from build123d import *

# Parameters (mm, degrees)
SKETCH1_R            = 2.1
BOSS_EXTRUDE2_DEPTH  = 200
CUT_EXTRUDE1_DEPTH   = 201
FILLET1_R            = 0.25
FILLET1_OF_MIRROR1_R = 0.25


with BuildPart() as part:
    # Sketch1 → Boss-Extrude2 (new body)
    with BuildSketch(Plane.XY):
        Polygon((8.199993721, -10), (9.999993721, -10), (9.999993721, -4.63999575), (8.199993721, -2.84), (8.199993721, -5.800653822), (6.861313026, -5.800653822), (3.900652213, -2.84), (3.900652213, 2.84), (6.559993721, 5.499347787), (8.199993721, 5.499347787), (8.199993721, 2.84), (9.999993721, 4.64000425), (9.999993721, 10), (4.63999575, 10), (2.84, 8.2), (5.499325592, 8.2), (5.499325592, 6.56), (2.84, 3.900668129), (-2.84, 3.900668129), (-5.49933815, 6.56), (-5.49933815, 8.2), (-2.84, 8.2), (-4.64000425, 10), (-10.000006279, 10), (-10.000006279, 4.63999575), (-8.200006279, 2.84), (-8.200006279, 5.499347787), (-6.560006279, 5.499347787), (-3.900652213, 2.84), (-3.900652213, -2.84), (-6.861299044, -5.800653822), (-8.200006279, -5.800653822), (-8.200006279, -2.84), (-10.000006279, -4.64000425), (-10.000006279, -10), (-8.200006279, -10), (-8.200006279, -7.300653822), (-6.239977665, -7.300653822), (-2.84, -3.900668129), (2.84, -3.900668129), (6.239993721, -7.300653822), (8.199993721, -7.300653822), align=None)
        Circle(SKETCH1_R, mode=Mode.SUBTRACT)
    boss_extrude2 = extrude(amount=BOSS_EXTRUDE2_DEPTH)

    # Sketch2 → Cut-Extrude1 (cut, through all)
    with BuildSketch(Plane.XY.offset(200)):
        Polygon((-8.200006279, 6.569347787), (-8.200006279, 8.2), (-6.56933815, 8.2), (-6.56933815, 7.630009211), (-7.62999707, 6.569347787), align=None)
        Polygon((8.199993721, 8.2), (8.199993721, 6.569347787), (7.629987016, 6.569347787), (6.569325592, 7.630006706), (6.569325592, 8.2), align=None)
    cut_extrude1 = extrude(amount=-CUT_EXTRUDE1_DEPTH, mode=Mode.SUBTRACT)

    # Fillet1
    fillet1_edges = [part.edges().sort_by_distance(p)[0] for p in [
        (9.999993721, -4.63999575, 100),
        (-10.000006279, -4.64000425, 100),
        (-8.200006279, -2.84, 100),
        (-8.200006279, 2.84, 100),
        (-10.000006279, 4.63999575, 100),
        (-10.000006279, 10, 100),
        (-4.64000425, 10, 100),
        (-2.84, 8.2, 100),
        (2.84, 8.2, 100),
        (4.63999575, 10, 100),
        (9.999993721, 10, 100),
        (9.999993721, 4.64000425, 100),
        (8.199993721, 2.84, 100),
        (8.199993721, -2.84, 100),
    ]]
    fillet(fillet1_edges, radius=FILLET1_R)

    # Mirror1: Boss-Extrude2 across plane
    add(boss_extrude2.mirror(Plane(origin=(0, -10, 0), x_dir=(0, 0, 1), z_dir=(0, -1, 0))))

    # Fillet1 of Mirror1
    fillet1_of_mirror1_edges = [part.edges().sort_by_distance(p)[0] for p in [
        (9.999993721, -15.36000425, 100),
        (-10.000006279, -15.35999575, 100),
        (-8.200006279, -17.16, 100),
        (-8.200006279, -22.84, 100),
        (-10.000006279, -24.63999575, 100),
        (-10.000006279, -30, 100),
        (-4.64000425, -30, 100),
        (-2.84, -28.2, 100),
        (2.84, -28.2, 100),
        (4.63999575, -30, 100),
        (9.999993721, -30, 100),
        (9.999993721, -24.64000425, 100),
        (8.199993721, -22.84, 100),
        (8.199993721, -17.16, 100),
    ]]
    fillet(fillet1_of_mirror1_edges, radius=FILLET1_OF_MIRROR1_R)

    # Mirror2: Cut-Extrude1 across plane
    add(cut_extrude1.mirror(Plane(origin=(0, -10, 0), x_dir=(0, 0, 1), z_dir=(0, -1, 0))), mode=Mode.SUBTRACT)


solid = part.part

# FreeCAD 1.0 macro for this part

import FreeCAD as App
import Part
import Sketcher
Q = App.Units.Quantity


def edges_at(feature, points):
    """Names of the edges that pass closest to the given points."""
    edges = feature.Shape.Edges
    near = lambda p: min(range(len(edges)), key=lambda i: edges[i].distToShape(Part.Vertex(*p))[0])
    return sorted({f"Edge{near(p) + 1}" for p in points})

doc = App.newDocument("Part")
body = doc.addObject("PartDesign::Body", "Body")

sketch1 = doc.addObject("Sketcher::SketchObject", "Sketch")
body.addObject(sketch1)
sketch1.AttachmentSupport = (doc.XY_Plane, [""])
sketch1.MapMode = "FlatFace"
sketch1.addGeometry(Part.LineSegment(App.Vector(8.199994, -10, 0), App.Vector(9.999994, -10, 0)), False)
sketch1.addGeometry(Part.LineSegment(App.Vector(9.999994, -10, 0), App.Vector(9.999994, -4.639996, 0)), False)
sketch1.addGeometry(Part.LineSegment(App.Vector(9.999994, -4.639996, 0), App.Vector(8.199994, -2.84, 0)), False)
sketch1.addGeometry(Part.LineSegment(App.Vector(8.199994, -2.84, 0), App.Vector(8.199994, -5.800654, 0)), False)
sketch1.addGeometry(Part.LineSegment(App.Vector(8.199994, -5.800654, 0), App.Vector(6.861313, -5.800654, 0)), False)
sketch1.addGeometry(Part.LineSegment(App.Vector(6.861313, -5.800654, 0), App.Vector(3.900652, -2.84, 0)), False)
sketch1.addGeometry(Part.LineSegment(App.Vector(3.900652, -2.84, 0), App.Vector(3.900652, 2.84, 0)), False)
sketch1.addGeometry(Part.LineSegment(App.Vector(3.900652, 2.84, 0), App.Vector(6.559994, 5.499348, 0)), False)
sketch1.addGeometry(Part.LineSegment(App.Vector(6.559994, 5.499348, 0), App.Vector(8.199994, 5.499348, 0)), False)
sketch1.addGeometry(Part.LineSegment(App.Vector(8.199994, 5.499348, 0), App.Vector(8.199994, 2.84, 0)), False)
sketch1.addGeometry(Part.LineSegment(App.Vector(8.199994, 2.84, 0), App.Vector(9.999994, 4.640004, 0)), False)
sketch1.addGeometry(Part.LineSegment(App.Vector(9.999994, 4.640004, 0), App.Vector(9.999994, 10, 0)), False)
sketch1.addGeometry(Part.LineSegment(App.Vector(9.999994, 10, 0), App.Vector(4.639996, 10, 0)), False)
sketch1.addGeometry(Part.LineSegment(App.Vector(4.639996, 10, 0), App.Vector(2.84, 8.2, 0)), False)
sketch1.addGeometry(Part.LineSegment(App.Vector(2.84, 8.2, 0), App.Vector(5.499326, 8.2, 0)), False)
sketch1.addGeometry(Part.LineSegment(App.Vector(5.499326, 8.2, 0), App.Vector(5.499326, 6.56, 0)), False)
sketch1.addGeometry(Part.LineSegment(App.Vector(5.499326, 6.56, 0), App.Vector(2.84, 3.900668, 0)), False)
sketch1.addGeometry(Part.LineSegment(App.Vector(2.84, 3.900668, 0), App.Vector(-2.84, 3.900668, 0)), False)
sketch1.addGeometry(Part.LineSegment(App.Vector(-2.84, 3.900668, 0), App.Vector(-5.499338, 6.56, 0)), False)
sketch1.addGeometry(Part.LineSegment(App.Vector(-5.499338, 6.56, 0), App.Vector(-5.499338, 8.2, 0)), False)
sketch1.addGeometry(Part.LineSegment(App.Vector(-5.499338, 8.2, 0), App.Vector(-2.84, 8.2, 0)), False)
sketch1.addGeometry(Part.LineSegment(App.Vector(-2.84, 8.2, 0), App.Vector(-4.640004, 10, 0)), False)
sketch1.addGeometry(Part.LineSegment(App.Vector(-4.640004, 10, 0), App.Vector(-10.000006, 10, 0)), False)
sketch1.addGeometry(Part.LineSegment(App.Vector(-10.000006, 10, 0), App.Vector(-10.000006, 4.639996, 0)), False)
sketch1.addGeometry(Part.LineSegment(App.Vector(-10.000006, 4.639996, 0), App.Vector(-8.200006, 2.84, 0)), False)
sketch1.addGeometry(Part.LineSegment(App.Vector(-8.200006, 2.84, 0), App.Vector(-8.200006, 5.499348, 0)), False)
sketch1.addGeometry(Part.LineSegment(App.Vector(-8.200006, 5.499348, 0), App.Vector(-6.560006, 5.499348, 0)), False)
sketch1.addGeometry(Part.LineSegment(App.Vector(-6.560006, 5.499348, 0), App.Vector(-3.900652, 2.84, 0)), False)
sketch1.addGeometry(Part.LineSegment(App.Vector(-3.900652, 2.84, 0), App.Vector(-3.900652, -2.84, 0)), False)
sketch1.addGeometry(Part.LineSegment(App.Vector(-3.900652, -2.84, 0), App.Vector(-6.861299, -5.800654, 0)), False)
sketch1.addGeometry(Part.LineSegment(App.Vector(-6.861299, -5.800654, 0), App.Vector(-8.200006, -5.800654, 0)), False)
sketch1.addGeometry(Part.LineSegment(App.Vector(-8.200006, -5.800654, 0), App.Vector(-8.200006, -2.84, 0)), False)
sketch1.addGeometry(Part.LineSegment(App.Vector(-8.200006, -2.84, 0), App.Vector(-10.000006, -4.640004, 0)), False)
sketch1.addGeometry(Part.LineSegment(App.Vector(-10.000006, -4.640004, 0), App.Vector(-10.000006, -10, 0)), False)
sketch1.addGeometry(Part.LineSegment(App.Vector(-10.000006, -10, 0), App.Vector(-8.200006, -10, 0)), False)
sketch1.addGeometry(Part.LineSegment(App.Vector(-8.200006, -10, 0), App.Vector(-8.200006, -7.300654, 0)), False)
sketch1.addGeometry(Part.LineSegment(App.Vector(-8.200006, -7.300654, 0), App.Vector(-6.239978, -7.300654, 0)), False)
sketch1.addGeometry(Part.LineSegment(App.Vector(-6.239978, -7.300654, 0), App.Vector(-2.84, -3.900668, 0)), False)
sketch1.addGeometry(Part.LineSegment(App.Vector(-2.84, -3.900668, 0), App.Vector(2.84, -3.900668, 0)), False)
sketch1.addGeometry(Part.LineSegment(App.Vector(2.84, -3.900668, 0), App.Vector(6.239994, -7.300654, 0)), False)
sketch1.addGeometry(Part.LineSegment(App.Vector(6.239994, -7.300654, 0), App.Vector(8.199994, -7.300654, 0)), False)
sketch1.addGeometry(Part.LineSegment(App.Vector(8.199994, -7.300654, 0), App.Vector(8.199994, -10, 0)), False)
sketch1.addGeometry(Part.Circle(App.Vector(0, 0, 0), App.Vector(0, 0, 1), 2.1), False)
sketch1.addConstraint(Sketcher.Constraint("Coincident", 0, 2, 1, 1))
sketch1.addConstraint(Sketcher.Constraint("Coincident", 1, 2, 2, 1))
sketch1.addConstraint(Sketcher.Constraint("Coincident", 2, 2, 3, 1))
sketch1.addConstraint(Sketcher.Constraint("Coincident", 3, 2, 4, 1))
sketch1.addConstraint(Sketcher.Constraint("Coincident", 4, 2, 5, 1))
sketch1.addConstraint(Sketcher.Constraint("Coincident", 5, 2, 6, 1))
sketch1.addConstraint(Sketcher.Constraint("Coincident", 6, 2, 7, 1))
sketch1.addConstraint(Sketcher.Constraint("Coincident", 7, 2, 8, 1))
sketch1.addConstraint(Sketcher.Constraint("Coincident", 8, 2, 9, 1))
sketch1.addConstraint(Sketcher.Constraint("Coincident", 9, 2, 10, 1))
sketch1.addConstraint(Sketcher.Constraint("Coincident", 10, 2, 11, 1))
sketch1.addConstraint(Sketcher.Constraint("Coincident", 11, 2, 12, 1))
sketch1.addConstraint(Sketcher.Constraint("Coincident", 12, 2, 13, 1))
sketch1.addConstraint(Sketcher.Constraint("Coincident", 13, 2, 14, 1))
sketch1.addConstraint(Sketcher.Constraint("Coincident", 14, 2, 15, 1))
sketch1.addConstraint(Sketcher.Constraint("Coincident", 15, 2, 16, 1))
sketch1.addConstraint(Sketcher.Constraint("Coincident", 16, 2, 17, 1))
sketch1.addConstraint(Sketcher.Constraint("Coincident", 17, 2, 18, 1))
sketch1.addConstraint(Sketcher.Constraint("Coincident", 18, 2, 19, 1))
sketch1.addConstraint(Sketcher.Constraint("Coincident", 19, 2, 20, 1))
sketch1.addConstraint(Sketcher.Constraint("Coincident", 20, 2, 21, 1))
sketch1.addConstraint(Sketcher.Constraint("Coincident", 21, 2, 22, 1))
sketch1.addConstraint(Sketcher.Constraint("Coincident", 22, 2, 23, 1))
sketch1.addConstraint(Sketcher.Constraint("Coincident", 23, 2, 24, 1))
sketch1.addConstraint(Sketcher.Constraint("Coincident", 24, 2, 25, 1))
sketch1.addConstraint(Sketcher.Constraint("Coincident", 25, 2, 26, 1))
sketch1.addConstraint(Sketcher.Constraint("Coincident", 26, 2, 27, 1))
sketch1.addConstraint(Sketcher.Constraint("Coincident", 27, 2, 28, 1))
sketch1.addConstraint(Sketcher.Constraint("Coincident", 28, 2, 29, 1))
sketch1.addConstraint(Sketcher.Constraint("Coincident", 29, 2, 30, 1))
sketch1.addConstraint(Sketcher.Constraint("Coincident", 30, 2, 31, 1))
sketch1.addConstraint(Sketcher.Constraint("Coincident", 31, 2, 32, 1))
sketch1.addConstraint(Sketcher.Constraint("Coincident", 32, 2, 33, 1))
sketch1.addConstraint(Sketcher.Constraint("Coincident", 33, 2, 34, 1))
sketch1.addConstraint(Sketcher.Constraint("Coincident", 34, 2, 35, 1))
sketch1.addConstraint(Sketcher.Constraint("Coincident", 35, 2, 36, 1))
sketch1.addConstraint(Sketcher.Constraint("Coincident", 36, 2, 37, 1))
sketch1.addConstraint(Sketcher.Constraint("Coincident", 37, 2, 38, 1))
sketch1.addConstraint(Sketcher.Constraint("Coincident", 38, 2, 39, 1))
sketch1.addConstraint(Sketcher.Constraint("Coincident", 39, 2, 40, 1))
sketch1.addConstraint(Sketcher.Constraint("Coincident", 40, 2, 41, 1))
sketch1.addConstraint(Sketcher.Constraint("Coincident", 41, 2, 0, 1))
sketch1.addConstraint(Sketcher.Constraint("Horizontal", 0))
sketch1.addConstraint(Sketcher.Constraint("Vertical", 1))
sketch1.addConstraint(Sketcher.Constraint("Vertical", 3))
sketch1.addConstraint(Sketcher.Constraint("Horizontal", 4))
sketch1.addConstraint(Sketcher.Constraint("Vertical", 6))
sketch1.addConstraint(Sketcher.Constraint("Horizontal", 8))
sketch1.addConstraint(Sketcher.Constraint("Vertical", 9))
sketch1.addConstraint(Sketcher.Constraint("Vertical", 11))
sketch1.addConstraint(Sketcher.Constraint("Horizontal", 12))
sketch1.addConstraint(Sketcher.Constraint("Horizontal", 14))
sketch1.addConstraint(Sketcher.Constraint("Vertical", 15))
sketch1.addConstraint(Sketcher.Constraint("Horizontal", 17))
sketch1.addConstraint(Sketcher.Constraint("Vertical", 19))
sketch1.addConstraint(Sketcher.Constraint("Horizontal", 20))
sketch1.addConstraint(Sketcher.Constraint("Horizontal", 22))
sketch1.addConstraint(Sketcher.Constraint("Vertical", 23))
sketch1.addConstraint(Sketcher.Constraint("Vertical", 25))
sketch1.addConstraint(Sketcher.Constraint("Horizontal", 26))
sketch1.addConstraint(Sketcher.Constraint("Vertical", 28))
sketch1.addConstraint(Sketcher.Constraint("Horizontal", 30))
sketch1.addConstraint(Sketcher.Constraint("Vertical", 31))
sketch1.addConstraint(Sketcher.Constraint("Vertical", 33))
sketch1.addConstraint(Sketcher.Constraint("Horizontal", 34))
sketch1.addConstraint(Sketcher.Constraint("Vertical", 35))
sketch1.addConstraint(Sketcher.Constraint("Horizontal", 36))
sketch1.addConstraint(Sketcher.Constraint("Horizontal", 38))
sketch1.addConstraint(Sketcher.Constraint("Horizontal", 40))
sketch1.addConstraint(Sketcher.Constraint("Vertical", 41))
sketch1.addConstraint(Sketcher.Constraint("Coincident", 42, 3, -1, 1))
sketch1.addConstraint(Sketcher.Constraint("Diameter", 42, Q("4.2 mm")))
sketch1.addConstraint(Sketcher.Constraint("DistanceX", 0, 1, 0, 2, Q("1.8 mm")))
sketch1.addConstraint(Sketcher.Constraint("DistanceX", 34, 1, 34, 2, Q("1.8 mm")))
sketch1.addConstraint(Sketcher.Constraint("DistanceY", 0, 2, -1, 1, Q("10 mm")))
sketch1.addConstraint(Sketcher.Constraint("DistanceY", -1, 1, 11, 2, Q("10 mm")))
sketch1.addConstraint(Sketcher.Constraint("DistanceY", -1, 1, 21, 2, Q("10 mm")))
sketch1.addConstraint(Sketcher.Constraint("DistanceY", 33, 2, -1, 1, Q("10 mm")))
sketch1.addConstraint(Sketcher.Constraint("DistanceX", 8, 1, 8, 2, Q("1.64 mm")))
sketch1.addConstraint(Sketcher.Constraint("DistanceX", 17, 2, 17, 1, Q("5.68 mm")))
sketch1.addConstraint(Sketcher.Constraint("DistanceX", 26, 1, 26, 2, Q("1.64 mm")))
sketch1.addConstraint(Sketcher.Constraint("DistanceX", 38, 1, 38, 2, Q("5.68 mm")))
sketch1.addConstraint(Sketcher.Constraint("DistanceX", 40, 1, 40, 2, Q("1.96 mm")))
sketch1.addConstraint(Sketcher.Constraint("DistanceY", 6, 1, 6, 2, Q("5.68 mm")))
sketch1.addConstraint(Sketcher.Constraint("DistanceY", 15, 2, 15, 1, Q("1.64 mm")))
sketch1.addConstraint(Sketcher.Constraint("DistanceY", 19, 1, 19, 2, Q("1.64 mm")))
sketch1.addConstraint(Sketcher.Constraint("DistanceY", 28, 2, 28, 1, Q("5.68 mm")))
sketch1.addConstraint(Sketcher.Constraint("DistanceY", -1, 1, 13, 2, Q("8.2 mm")))
sketch1.addConstraint(Sketcher.Constraint("DistanceY", -1, 1, 19, 2, Q("8.2 mm")))
sketch1.addConstraint(Sketcher.Constraint("DistanceX", 2, 2, 1, 2, Q("1.8 mm")))
sketch1.addConstraint(Sketcher.Constraint("DistanceX", 8, 2, 10, 2, Q("1.8 mm")))
sketch1.addConstraint(Sketcher.Constraint("DistanceX", 2, 2, 10, 2, Q("1.8 mm")))
sketch1.addConstraint(Sketcher.Constraint("DistanceX", 23, 2, 24, 2, Q("1.8 mm")))
sketch1.addConstraint(Sketcher.Constraint("DistanceX", 32, 2, 30, 2, Q("1.8 mm")))
sketch1.addConstraint(Sketcher.Constraint("DistanceX", 32, 2, 24, 2, Q("1.8 mm")))
sketch1.addConstraint(Sketcher.Constraint("DistanceY", 35, 2, 30, 2, Q("1.5 mm")))
sketch1.addConstraint(Sketcher.Constraint("DistanceY", 39, 2, 4, 2, Q("1.5 mm")))
sketch1.addConstraint(Sketcher.Constraint("DistanceY", 2, 2, -1, 1, Q("2.84 mm")))
sketch1.addConstraint(Sketcher.Constraint("DistanceY", 5, 2, -1, 1, Q("2.84 mm")))
sketch1.addConstraint(Sketcher.Constraint("DistanceY", -1, 1, 9, 2, Q("2.84 mm")))
sketch1.addConstraint(Sketcher.Constraint("DistanceX", -1, 1, 13, 2, Q("2.84 mm")))
sketch1.addConstraint(Sketcher.Constraint("DistanceX", -1, 1, 16, 2, Q("2.84 mm")))
sketch1.addConstraint(Sketcher.Constraint("DistanceX", 20, 2, -1, 1, Q("2.84 mm")))
sketch1.addConstraint(Sketcher.Constraint("DistanceY", -1, 1, 24, 2, Q("2.84 mm")))
sketch1.addConstraint(Sketcher.Constraint("DistanceY", -1, 1, 27, 2, Q("2.84 mm")))
sketch1.addConstraint(Sketcher.Constraint("DistanceY", 31, 2, -1, 1, Q("2.84 mm")))
sketch1.addConstraint(Sketcher.Constraint("DistanceX", 37, 2, -1, 1, Q("2.84 mm")))
sketch1.addConstraint(Sketcher.Constraint("Distance", 5, Q("4.187002 mm")))
sketch1.addConstraint(Sketcher.Constraint("Distance", 37, Q("4.8083 mm")))
sketch1.addConstraint(Sketcher.Constraint("DistanceX", 4, 2, 4, 1, Q("1.338681 mm")))
sketch1.addConstraint(Sketcher.Constraint("DistanceX", 20, 1, 20, 2, Q("2.659338 mm")))
sketch1.addConstraint(Sketcher.Constraint("DistanceX", 36, 1, 36, 2, Q("1.960029 mm")))
sketch1.addConstraint(Sketcher.Constraint("DistanceX", 29, 2, -1, 1, Q("6.861299 mm")))
sketch1.addConstraint(Sketcher.Constraint("Distance", 2, Q("2.545581 mm")))
sketch1.addConstraint(Sketcher.Constraint("Distance", 7, Q("3.760881 mm")))
sketch1.addConstraint(Sketcher.Constraint("Distance", 13, Q("2.545581 mm")))
sketch1.addConstraint(Sketcher.Constraint("Distance", 16, Q("3.760859 mm")))
sketch1.addConstraint(Sketcher.Constraint("Distance", 24, Q("2.545581 mm")))
sketch1.addConstraint(Sketcher.Constraint("Distance", 27, Q("3.76089 mm")))
sketch1.addConstraint(Sketcher.Constraint("Distance", 29, Q("4.186992 mm")))
sketch1.addConstraint(Sketcher.Constraint("Distance", 39, Q("4.808312 mm")))
sketch1.addConstraint(Sketcher.Constraint("DistanceX", 12, 2, 12, 1, Q("5.359998 mm")))
sketch1.addConstraint(Sketcher.Constraint("DistanceX", 14, 1, 14, 2, Q("2.659326 mm")))
sketch1.addConstraint(Sketcher.Constraint("DistanceX", 22, 2, 22, 1, Q("5.360002 mm")))
sketch1.addConstraint(Sketcher.Constraint("DistanceX", 30, 2, 30, 1, Q("1.338707 mm")))
sketch1.addConstraint(Sketcher.Constraint("DistanceY", 3, 2, 3, 1, Q("2.960654 mm")))
sketch1.addConstraint(Sketcher.Constraint("DistanceY", 11, 1, 11, 2, Q("5.359996 mm")))
sketch1.addConstraint(Sketcher.Constraint("DistanceY", 33, 2, 33, 1, Q("5.359996 mm")))
pad1 = doc.addObject("PartDesign::Pad", "Pad")
body.addObject(pad1)
pad1.Profile = sketch1
pad1.Length = 200

sketch2 = doc.addObject("Sketcher::SketchObject", "Sketch001")
body.addObject(sketch2)
sketch2.AttachmentSupport = (doc.XY_Plane, [""])
sketch2.MapMode = "FlatFace"
sketch2.AttachmentOffset = App.Placement(App.Vector(0, 0, 200), App.Rotation())
sketch2.addGeometry(Part.LineSegment(App.Vector(-8.2, 8.2, 0), App.Vector(-8.2, 6.6, 0)), False)
sketch2.addGeometry(Part.LineSegment(App.Vector(-8.2, 6.6, 0), App.Vector(-7.6, 6.6, 0)), False)
sketch2.addGeometry(Part.LineSegment(App.Vector(-7.6, 6.6, 0), App.Vector(-6.6, 7.6, 0)), False)
sketch2.addGeometry(Part.LineSegment(App.Vector(-6.6, 7.6, 0), App.Vector(-6.6, 8.2, 0)), False)
sketch2.addGeometry(Part.LineSegment(App.Vector(-6.6, 8.2, 0), App.Vector(-8.2, 8.2, 0)), False)
sketch2.addGeometry(Part.LineSegment(App.Vector(8.2, 6.6, 0), App.Vector(8.2, 8.2, 0)), False)
sketch2.addGeometry(Part.LineSegment(App.Vector(8.2, 8.2, 0), App.Vector(6.6, 8.2, 0)), False)
sketch2.addGeometry(Part.LineSegment(App.Vector(6.6, 8.2, 0), App.Vector(6.6, 7.6, 0)), False)
sketch2.addGeometry(Part.LineSegment(App.Vector(6.6, 7.6, 0), App.Vector(7.6, 6.6, 0)), False)
sketch2.addGeometry(Part.LineSegment(App.Vector(7.6, 6.6, 0), App.Vector(8.2, 6.6, 0)), False)
sketch2.addConstraint(Sketcher.Constraint("Coincident", 0, 2, 1, 1))
sketch2.addConstraint(Sketcher.Constraint("Coincident", 1, 2, 2, 1))
sketch2.addConstraint(Sketcher.Constraint("Coincident", 2, 2, 3, 1))
sketch2.addConstraint(Sketcher.Constraint("Coincident", 3, 2, 4, 1))
sketch2.addConstraint(Sketcher.Constraint("Coincident", 4, 2, 0, 1))
sketch2.addConstraint(Sketcher.Constraint("Coincident", 5, 2, 6, 1))
sketch2.addConstraint(Sketcher.Constraint("Coincident", 6, 2, 7, 1))
sketch2.addConstraint(Sketcher.Constraint("Coincident", 7, 2, 8, 1))
sketch2.addConstraint(Sketcher.Constraint("Coincident", 8, 2, 9, 1))
sketch2.addConstraint(Sketcher.Constraint("Coincident", 9, 2, 5, 1))
sketch2.addConstraint(Sketcher.Constraint("Vertical", 0))
sketch2.addConstraint(Sketcher.Constraint("Horizontal", 1))
sketch2.addConstraint(Sketcher.Constraint("Vertical", 3))
sketch2.addConstraint(Sketcher.Constraint("Horizontal", 4))
sketch2.addConstraint(Sketcher.Constraint("Vertical", 5))
sketch2.addConstraint(Sketcher.Constraint("Horizontal", 6))
sketch2.addConstraint(Sketcher.Constraint("Vertical", 7))
sketch2.addConstraint(Sketcher.Constraint("Horizontal", 9))
sketch2.addConstraint(Sketcher.Constraint("Perpendicular", 2, 8))
sketch2.addConstraint(Sketcher.Constraint("Horizontal", 4, 2, 5, 2))
sketch2.addConstraint(Sketcher.Constraint("Horizontal", 1, 2, 8, 2))
sketch2.addConstraint(Sketcher.Constraint("Equal", 4, 6))
sketch2.addConstraint(Sketcher.Constraint("Equal", 2, 8))
sketch2.addConstraint(Sketcher.Constraint("Distance", 2, Q("1.5 mm")))
sketch2.addConstraint(Sketcher.Constraint("DistanceY", -1, 1, 3, 2, Q("8.2 mm")))
sketch2.addConstraint(Sketcher.Constraint("DistanceX", 4, 2, 5, 2, Q("16.4 mm")))
sketch2.addConstraint(Sketcher.Constraint("DistanceX", 1, 1, 1, 2, Q("0.570009 mm")))
sketch2.addConstraint(Sketcher.Constraint("DistanceX", 4, 2, 4, 1, Q("1.630668 mm")))
sketch2.addConstraint(Sketcher.Constraint("DistanceY", 3, 1, 3, 2, Q("0.569991 mm")))
sketch2.addConstraint(Sketcher.Constraint("DistanceX", 2, 2, -1, 1, Q("6.569338 mm")))
pocket1 = doc.addObject("PartDesign::Pocket", "Pocket")
body.addObject(pocket1)
pocket1.Profile = sketch2
pocket1.Type = "ThroughAll"
doc.recompute()

fillet = doc.addObject("PartDesign::Fillet", "Fillet")
body.addObject(fillet)
fillet.Base = (pocket1, edges_at(pocket1, [
    (10, -4.64, 100),
    (-10, -4.64, 100),
    (-8.2, -2.84, 100),
    (-8.2, 2.84, 100),
    (-10, 4.64, 100),
    (-10, 10, 100),
    (-4.64, 10, 100),
    (-2.84, 8.2, 100),
    (2.84, 8.2, 100),
    (4.64, 10, 100),
    (10, 10, 100),
    (10, 4.64, 100),
    (8.2, 2.84, 100),
    (8.2, -2.84, 100),
]))
fillet.Radius = 0.25
doc.recompute()

datumplane = doc.addObject("PartDesign::Plane", "DatumPlane")
body.addObject(datumplane)
datumplane.AttachmentSupport = (doc.XZ_Plane, [""])
datumplane.MapMode = "FlatFace"
datumplane.AttachmentOffset = App.Placement(App.Vector(0, 0, 10), App.Rotation())
mirrored = doc.addObject("PartDesign::Mirrored", "Mirrored")
body.addObject(mirrored)
mirrored.Originals = [pad1]
mirrored.MirrorPlane = (datumplane, [""])
body.Tip = mirrored
doc.recompute()

fillet2 = doc.addObject("PartDesign::Fillet", "Fillet001")
body.addObject(fillet2)
fillet2.Base = (mirrored, edges_at(mirrored, [
    (10, -15.36, 100),
    (-10, -15.36, 100),
    (-8.2, -17.16, 100),
    (-8.2, -22.84, 100),
    (-10, -24.64, 100),
    (-10, -30, 100),
    (-4.64, -30, 100),
    (-2.84, -28.2, 100),
    (2.84, -28.2, 100),
    (4.64, -30, 100),
    (10, -30, 100),
    (10, -24.64, 100),
    (8.2, -22.84, 100),
    (8.2, -17.16, 100),
]))
fillet2.Radius = 0.25
doc.recompute()

datumplane2 = doc.addObject("PartDesign::Plane", "DatumPlane001")
body.addObject(datumplane2)
datumplane2.AttachmentSupport = (doc.XZ_Plane, [""])
datumplane2.MapMode = "FlatFace"
datumplane2.AttachmentOffset = App.Placement(App.Vector(0, 0, 10), App.Rotation())
mirrored2 = doc.addObject("PartDesign::Mirrored", "Mirrored001")
body.addObject(mirrored2)
mirrored2.Originals = [pocket1]
mirrored2.MirrorPlane = (datumplane2, [""])
body.Tip = mirrored2

doc.recompute()
